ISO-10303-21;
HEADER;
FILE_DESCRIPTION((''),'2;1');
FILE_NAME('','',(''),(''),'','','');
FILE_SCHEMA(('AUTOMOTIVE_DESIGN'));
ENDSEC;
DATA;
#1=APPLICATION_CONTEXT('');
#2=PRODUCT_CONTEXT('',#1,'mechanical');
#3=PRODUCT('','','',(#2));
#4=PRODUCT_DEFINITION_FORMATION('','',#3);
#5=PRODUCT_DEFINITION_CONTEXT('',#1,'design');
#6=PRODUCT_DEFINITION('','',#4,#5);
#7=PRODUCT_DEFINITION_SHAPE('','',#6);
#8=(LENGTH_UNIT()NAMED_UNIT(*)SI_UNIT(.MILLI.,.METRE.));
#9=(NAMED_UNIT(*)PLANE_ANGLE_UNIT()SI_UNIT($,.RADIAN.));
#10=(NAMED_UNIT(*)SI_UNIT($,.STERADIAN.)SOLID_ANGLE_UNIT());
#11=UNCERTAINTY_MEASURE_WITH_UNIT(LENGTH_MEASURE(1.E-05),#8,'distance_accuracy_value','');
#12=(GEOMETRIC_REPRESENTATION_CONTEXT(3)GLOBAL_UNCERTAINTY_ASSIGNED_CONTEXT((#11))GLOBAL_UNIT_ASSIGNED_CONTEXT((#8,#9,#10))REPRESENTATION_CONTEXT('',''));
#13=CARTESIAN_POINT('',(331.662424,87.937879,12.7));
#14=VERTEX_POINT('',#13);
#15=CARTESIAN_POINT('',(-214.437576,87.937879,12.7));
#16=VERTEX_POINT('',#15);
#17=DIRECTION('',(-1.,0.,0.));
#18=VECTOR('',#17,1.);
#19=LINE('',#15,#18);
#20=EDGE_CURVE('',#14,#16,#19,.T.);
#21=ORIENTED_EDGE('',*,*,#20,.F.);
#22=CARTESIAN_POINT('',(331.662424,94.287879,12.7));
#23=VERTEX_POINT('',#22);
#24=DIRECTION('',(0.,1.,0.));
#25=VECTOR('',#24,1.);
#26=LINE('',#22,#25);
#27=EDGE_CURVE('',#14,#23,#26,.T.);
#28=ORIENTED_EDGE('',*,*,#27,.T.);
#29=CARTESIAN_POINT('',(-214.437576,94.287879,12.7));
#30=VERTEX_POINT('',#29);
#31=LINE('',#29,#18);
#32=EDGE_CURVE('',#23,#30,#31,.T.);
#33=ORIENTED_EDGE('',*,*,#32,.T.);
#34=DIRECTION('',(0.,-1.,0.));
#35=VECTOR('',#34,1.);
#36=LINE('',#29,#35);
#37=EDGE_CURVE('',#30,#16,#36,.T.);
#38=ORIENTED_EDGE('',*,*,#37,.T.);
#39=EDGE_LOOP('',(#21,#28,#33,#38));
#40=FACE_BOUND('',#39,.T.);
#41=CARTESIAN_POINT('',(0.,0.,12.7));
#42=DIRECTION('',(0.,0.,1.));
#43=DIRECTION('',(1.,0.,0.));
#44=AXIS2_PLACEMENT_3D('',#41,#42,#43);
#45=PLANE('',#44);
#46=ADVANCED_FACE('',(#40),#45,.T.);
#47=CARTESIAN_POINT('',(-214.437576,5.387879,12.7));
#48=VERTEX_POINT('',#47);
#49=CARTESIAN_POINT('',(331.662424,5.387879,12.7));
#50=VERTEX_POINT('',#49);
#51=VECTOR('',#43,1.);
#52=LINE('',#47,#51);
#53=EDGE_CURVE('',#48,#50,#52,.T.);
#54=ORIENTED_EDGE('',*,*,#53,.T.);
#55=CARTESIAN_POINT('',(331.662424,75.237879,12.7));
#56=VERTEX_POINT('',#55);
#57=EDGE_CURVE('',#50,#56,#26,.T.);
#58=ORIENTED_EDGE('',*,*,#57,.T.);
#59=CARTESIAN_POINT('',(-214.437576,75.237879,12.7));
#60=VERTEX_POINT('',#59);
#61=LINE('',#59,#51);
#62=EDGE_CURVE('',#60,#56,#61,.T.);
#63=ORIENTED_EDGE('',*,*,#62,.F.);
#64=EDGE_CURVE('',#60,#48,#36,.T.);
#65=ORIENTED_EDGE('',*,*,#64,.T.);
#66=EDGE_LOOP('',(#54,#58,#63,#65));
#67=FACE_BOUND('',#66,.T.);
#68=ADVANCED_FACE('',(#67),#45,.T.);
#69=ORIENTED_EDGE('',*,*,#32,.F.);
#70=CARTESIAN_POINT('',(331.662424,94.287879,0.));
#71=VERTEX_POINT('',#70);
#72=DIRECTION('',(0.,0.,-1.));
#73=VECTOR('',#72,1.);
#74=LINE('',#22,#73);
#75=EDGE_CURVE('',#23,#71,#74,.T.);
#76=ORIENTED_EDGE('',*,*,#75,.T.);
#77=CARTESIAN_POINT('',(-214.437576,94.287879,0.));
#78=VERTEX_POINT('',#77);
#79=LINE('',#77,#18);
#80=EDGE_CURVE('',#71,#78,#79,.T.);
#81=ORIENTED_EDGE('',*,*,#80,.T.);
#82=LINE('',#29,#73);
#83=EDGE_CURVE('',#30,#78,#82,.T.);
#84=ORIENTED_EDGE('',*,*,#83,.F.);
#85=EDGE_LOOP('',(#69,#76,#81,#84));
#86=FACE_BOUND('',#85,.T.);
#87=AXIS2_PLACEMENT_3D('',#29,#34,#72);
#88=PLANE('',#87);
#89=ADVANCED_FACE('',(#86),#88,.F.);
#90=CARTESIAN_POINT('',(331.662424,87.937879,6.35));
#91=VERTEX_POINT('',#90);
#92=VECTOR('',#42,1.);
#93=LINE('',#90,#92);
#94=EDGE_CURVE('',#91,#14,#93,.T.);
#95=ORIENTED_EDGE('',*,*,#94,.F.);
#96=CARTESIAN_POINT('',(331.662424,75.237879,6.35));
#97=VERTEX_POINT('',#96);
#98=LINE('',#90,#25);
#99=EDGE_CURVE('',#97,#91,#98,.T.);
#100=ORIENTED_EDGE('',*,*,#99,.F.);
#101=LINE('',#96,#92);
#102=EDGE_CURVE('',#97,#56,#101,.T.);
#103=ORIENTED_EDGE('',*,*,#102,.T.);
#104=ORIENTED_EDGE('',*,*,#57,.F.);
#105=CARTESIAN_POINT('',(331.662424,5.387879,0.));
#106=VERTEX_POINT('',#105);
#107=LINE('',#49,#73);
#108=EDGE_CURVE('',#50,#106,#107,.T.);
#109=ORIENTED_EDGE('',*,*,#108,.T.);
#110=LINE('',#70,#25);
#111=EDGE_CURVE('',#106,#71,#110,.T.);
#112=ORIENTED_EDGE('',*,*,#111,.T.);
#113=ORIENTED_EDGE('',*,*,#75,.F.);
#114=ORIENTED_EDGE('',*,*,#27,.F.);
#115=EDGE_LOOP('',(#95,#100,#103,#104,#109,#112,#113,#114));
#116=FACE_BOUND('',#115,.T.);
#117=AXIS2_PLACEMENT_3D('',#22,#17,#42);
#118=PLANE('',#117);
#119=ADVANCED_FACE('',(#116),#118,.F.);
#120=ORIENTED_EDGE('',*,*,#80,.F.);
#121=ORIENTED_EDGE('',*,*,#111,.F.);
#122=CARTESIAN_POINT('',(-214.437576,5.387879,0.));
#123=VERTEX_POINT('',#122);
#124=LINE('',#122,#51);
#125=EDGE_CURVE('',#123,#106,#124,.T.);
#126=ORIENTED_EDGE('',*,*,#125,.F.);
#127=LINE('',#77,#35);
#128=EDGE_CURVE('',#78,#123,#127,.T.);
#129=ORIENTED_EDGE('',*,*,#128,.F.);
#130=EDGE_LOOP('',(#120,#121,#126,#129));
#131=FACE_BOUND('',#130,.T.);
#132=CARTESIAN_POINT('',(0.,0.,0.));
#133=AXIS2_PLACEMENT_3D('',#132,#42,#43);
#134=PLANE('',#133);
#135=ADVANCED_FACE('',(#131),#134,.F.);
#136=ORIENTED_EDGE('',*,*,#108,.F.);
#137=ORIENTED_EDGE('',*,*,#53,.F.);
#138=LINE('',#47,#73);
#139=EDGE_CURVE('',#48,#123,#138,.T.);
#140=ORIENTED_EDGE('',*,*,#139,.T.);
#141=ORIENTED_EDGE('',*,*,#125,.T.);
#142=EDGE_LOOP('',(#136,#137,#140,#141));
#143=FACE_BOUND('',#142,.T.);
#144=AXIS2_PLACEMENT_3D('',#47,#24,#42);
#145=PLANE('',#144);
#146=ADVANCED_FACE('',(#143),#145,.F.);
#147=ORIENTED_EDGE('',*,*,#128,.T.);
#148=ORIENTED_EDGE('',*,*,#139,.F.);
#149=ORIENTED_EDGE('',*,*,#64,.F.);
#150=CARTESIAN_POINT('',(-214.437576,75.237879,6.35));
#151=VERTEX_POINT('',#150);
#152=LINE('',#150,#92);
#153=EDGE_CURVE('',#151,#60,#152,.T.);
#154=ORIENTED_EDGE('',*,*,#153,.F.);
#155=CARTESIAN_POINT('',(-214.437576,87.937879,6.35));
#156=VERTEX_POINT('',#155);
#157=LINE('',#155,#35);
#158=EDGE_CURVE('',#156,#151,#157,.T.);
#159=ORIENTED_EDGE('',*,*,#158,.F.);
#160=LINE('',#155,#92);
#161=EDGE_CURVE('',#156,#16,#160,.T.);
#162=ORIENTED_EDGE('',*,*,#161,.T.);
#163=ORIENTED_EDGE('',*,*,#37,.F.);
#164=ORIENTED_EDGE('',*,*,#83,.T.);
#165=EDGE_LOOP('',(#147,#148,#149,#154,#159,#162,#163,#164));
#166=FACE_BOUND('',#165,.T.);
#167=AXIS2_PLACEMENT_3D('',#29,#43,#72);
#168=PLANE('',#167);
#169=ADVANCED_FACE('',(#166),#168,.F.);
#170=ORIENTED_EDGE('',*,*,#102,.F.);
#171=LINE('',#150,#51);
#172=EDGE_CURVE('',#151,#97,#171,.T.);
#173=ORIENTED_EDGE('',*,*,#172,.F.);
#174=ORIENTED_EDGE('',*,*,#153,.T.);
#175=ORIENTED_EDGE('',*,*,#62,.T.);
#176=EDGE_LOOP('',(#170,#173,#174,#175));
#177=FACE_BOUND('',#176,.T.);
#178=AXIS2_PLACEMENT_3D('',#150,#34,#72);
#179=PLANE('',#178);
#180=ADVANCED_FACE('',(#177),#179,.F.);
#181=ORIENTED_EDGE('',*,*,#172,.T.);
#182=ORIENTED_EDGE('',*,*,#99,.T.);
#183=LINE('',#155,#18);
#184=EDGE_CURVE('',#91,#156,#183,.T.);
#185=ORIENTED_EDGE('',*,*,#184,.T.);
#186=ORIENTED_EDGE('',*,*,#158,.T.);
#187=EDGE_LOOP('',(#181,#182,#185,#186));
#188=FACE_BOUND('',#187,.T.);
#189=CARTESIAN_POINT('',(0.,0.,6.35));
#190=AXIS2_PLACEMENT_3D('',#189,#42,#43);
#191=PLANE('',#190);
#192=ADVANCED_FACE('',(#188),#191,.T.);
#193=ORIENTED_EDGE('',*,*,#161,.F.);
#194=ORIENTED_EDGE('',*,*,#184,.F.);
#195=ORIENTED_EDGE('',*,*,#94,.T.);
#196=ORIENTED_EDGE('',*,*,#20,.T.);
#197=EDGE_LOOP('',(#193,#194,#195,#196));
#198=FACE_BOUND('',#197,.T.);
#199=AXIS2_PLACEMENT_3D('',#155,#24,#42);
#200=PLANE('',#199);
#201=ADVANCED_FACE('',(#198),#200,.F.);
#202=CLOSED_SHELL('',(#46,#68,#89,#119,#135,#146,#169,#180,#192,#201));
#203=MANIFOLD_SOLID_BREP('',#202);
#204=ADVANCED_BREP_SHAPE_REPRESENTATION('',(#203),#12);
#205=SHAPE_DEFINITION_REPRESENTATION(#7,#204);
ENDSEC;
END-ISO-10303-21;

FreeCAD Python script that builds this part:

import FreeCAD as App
import Part
import Sketcher

V = App.Vector
Q = App.Units.Quantity

doc = App.newDocument("Part")
body = doc.addObject("PartDesign::Body", "Body")

sketch1 = body.newObject("Sketcher::SketchObject", "Sketch")
sketch1.AttachmentSupport = (doc.getObject("XY_Plane"), [""])
sketch1.MapMode = "FlatFace"
sketch1.addGeometry(Part.LineSegment(V(-214.437576, 94.287879, 0), V(-214.437576, 5.387879, 0)), False)
sketch1.addGeometry(Part.LineSegment(V(-214.437576, 5.387879, 0), V(331.662424, 5.387879, 0)), False)
sketch1.addGeometry(Part.LineSegment(V(331.662424, 5.387879, 0), V(331.662424, 94.287879, 0)), False)
sketch1.addGeometry(Part.LineSegment(V(331.662424, 94.287879, 0), V(-214.437576, 94.287879, 0)), False)
sketch1.addConstraint(Sketcher.Constraint("Coincident", 0, 2, 1, 1))
sketch1.addConstraint(Sketcher.Constraint("Coincident", 1, 2, 2, 1))
sketch1.addConstraint(Sketcher.Constraint("Coincident", 2, 2, 3, 1))
sketch1.addConstraint(Sketcher.Constraint("Coincident", 3, 2, 0, 1))
sketch1.addConstraint(Sketcher.Constraint("Vertical", 0))
sketch1.addConstraint(Sketcher.Constraint("Horizontal", 1))
sketch1.addConstraint(Sketcher.Constraint("Vertical", 2))
sketch1.addConstraint(Sketcher.Constraint("Horizontal", 3))
sketch1.addConstraint(Sketcher.Constraint("DistanceX", 1, 1, 1, 2, Q("21.5 in")))
sketch1.addConstraint(Sketcher.Constraint("DistanceY", 0, 2, 0, 1, Q("3.5 in")))
sketch1.addConstraint(Sketcher.Constraint("DistanceY", -1, 1, 0, 2, Q("5.387879 mm")))
sketch1.addConstraint(Sketcher.Constraint("DistanceX", 0, 2, -1, 1, Q("214.437576 mm")))
pad1 = body.newObject("PartDesign::Pad", "Pad")
pad1.Profile = sketch1
pad1.Length = Q("0.5 in")

sketch2 = body.newObject("Sketcher::SketchObject", "Sketch001")
sketch2.AttachmentSupport = (doc.getObject("XY_Plane"), [""])
sketch2.MapMode = "FlatFace"
sketch2.AttachmentOffset = App.Placement(V(0, 0, 0.5 * 25.4), App.Rotation())
sketch2.addGeometry(Part.LineSegment(V(-214.437576, 87.937879, 0), V(-214.437576, 75.237879, 0)), False)
sketch2.addGeometry(Part.LineSegment(V(-214.437576, 75.237879, 0), V(331.662424, 75.237879, 0)), False)
sketch2.addGeometry(Part.LineSegment(V(331.662424, 75.237879, 0), V(331.662424, 87.937879, 0)), False)
sketch2.addGeometry(Part.LineSegment(V(331.662424, 87.937879, 0), V(-214.437576, 87.937879, 0)), False)
sketch2.addConstraint(Sketcher.Constraint("Coincident", 0, 2, 1, 1))
sketch2.addConstraint(Sketcher.Constraint("Coincident", 1, 2, 2, 1))
sketch2.addConstraint(Sketcher.Constraint("Coincident", 2, 2, 3, 1))
sketch2.addConstraint(Sketcher.Constraint("Coincident", 3, 2, 0, 1))
sketch2.addConstraint(Sketcher.Constraint("Vertical", 0))
sketch2.addConstraint(Sketcher.Constraint("Horizontal", 1))
sketch2.addConstraint(Sketcher.Constraint("Vertical", 2))
sketch2.addConstraint(Sketcher.Constraint("Horizontal", 3))
sketch2.addConstraint(Sketcher.Constraint("DistanceX", 1, 1, 1, 2, Q("21.5 in")))
sketch2.addConstraint(Sketcher.Constraint("DistanceY", 0, 2, 0, 1, Q("0.5 in")))
sketch2.addConstraint(Sketcher.Constraint("DistanceY", -1, 1, 0, 2, Q("75.237879 mm")))
sketch2.addConstraint(Sketcher.Constraint("DistanceX", 0, 2, -1, 1, Q("214.437576 mm")))
pocket1 = body.newObject("PartDesign::Pocket", "Pocket")
pocket1.Profile = sketch2
pocket1.Length = Q("0.25 in")

doc.recompute()
